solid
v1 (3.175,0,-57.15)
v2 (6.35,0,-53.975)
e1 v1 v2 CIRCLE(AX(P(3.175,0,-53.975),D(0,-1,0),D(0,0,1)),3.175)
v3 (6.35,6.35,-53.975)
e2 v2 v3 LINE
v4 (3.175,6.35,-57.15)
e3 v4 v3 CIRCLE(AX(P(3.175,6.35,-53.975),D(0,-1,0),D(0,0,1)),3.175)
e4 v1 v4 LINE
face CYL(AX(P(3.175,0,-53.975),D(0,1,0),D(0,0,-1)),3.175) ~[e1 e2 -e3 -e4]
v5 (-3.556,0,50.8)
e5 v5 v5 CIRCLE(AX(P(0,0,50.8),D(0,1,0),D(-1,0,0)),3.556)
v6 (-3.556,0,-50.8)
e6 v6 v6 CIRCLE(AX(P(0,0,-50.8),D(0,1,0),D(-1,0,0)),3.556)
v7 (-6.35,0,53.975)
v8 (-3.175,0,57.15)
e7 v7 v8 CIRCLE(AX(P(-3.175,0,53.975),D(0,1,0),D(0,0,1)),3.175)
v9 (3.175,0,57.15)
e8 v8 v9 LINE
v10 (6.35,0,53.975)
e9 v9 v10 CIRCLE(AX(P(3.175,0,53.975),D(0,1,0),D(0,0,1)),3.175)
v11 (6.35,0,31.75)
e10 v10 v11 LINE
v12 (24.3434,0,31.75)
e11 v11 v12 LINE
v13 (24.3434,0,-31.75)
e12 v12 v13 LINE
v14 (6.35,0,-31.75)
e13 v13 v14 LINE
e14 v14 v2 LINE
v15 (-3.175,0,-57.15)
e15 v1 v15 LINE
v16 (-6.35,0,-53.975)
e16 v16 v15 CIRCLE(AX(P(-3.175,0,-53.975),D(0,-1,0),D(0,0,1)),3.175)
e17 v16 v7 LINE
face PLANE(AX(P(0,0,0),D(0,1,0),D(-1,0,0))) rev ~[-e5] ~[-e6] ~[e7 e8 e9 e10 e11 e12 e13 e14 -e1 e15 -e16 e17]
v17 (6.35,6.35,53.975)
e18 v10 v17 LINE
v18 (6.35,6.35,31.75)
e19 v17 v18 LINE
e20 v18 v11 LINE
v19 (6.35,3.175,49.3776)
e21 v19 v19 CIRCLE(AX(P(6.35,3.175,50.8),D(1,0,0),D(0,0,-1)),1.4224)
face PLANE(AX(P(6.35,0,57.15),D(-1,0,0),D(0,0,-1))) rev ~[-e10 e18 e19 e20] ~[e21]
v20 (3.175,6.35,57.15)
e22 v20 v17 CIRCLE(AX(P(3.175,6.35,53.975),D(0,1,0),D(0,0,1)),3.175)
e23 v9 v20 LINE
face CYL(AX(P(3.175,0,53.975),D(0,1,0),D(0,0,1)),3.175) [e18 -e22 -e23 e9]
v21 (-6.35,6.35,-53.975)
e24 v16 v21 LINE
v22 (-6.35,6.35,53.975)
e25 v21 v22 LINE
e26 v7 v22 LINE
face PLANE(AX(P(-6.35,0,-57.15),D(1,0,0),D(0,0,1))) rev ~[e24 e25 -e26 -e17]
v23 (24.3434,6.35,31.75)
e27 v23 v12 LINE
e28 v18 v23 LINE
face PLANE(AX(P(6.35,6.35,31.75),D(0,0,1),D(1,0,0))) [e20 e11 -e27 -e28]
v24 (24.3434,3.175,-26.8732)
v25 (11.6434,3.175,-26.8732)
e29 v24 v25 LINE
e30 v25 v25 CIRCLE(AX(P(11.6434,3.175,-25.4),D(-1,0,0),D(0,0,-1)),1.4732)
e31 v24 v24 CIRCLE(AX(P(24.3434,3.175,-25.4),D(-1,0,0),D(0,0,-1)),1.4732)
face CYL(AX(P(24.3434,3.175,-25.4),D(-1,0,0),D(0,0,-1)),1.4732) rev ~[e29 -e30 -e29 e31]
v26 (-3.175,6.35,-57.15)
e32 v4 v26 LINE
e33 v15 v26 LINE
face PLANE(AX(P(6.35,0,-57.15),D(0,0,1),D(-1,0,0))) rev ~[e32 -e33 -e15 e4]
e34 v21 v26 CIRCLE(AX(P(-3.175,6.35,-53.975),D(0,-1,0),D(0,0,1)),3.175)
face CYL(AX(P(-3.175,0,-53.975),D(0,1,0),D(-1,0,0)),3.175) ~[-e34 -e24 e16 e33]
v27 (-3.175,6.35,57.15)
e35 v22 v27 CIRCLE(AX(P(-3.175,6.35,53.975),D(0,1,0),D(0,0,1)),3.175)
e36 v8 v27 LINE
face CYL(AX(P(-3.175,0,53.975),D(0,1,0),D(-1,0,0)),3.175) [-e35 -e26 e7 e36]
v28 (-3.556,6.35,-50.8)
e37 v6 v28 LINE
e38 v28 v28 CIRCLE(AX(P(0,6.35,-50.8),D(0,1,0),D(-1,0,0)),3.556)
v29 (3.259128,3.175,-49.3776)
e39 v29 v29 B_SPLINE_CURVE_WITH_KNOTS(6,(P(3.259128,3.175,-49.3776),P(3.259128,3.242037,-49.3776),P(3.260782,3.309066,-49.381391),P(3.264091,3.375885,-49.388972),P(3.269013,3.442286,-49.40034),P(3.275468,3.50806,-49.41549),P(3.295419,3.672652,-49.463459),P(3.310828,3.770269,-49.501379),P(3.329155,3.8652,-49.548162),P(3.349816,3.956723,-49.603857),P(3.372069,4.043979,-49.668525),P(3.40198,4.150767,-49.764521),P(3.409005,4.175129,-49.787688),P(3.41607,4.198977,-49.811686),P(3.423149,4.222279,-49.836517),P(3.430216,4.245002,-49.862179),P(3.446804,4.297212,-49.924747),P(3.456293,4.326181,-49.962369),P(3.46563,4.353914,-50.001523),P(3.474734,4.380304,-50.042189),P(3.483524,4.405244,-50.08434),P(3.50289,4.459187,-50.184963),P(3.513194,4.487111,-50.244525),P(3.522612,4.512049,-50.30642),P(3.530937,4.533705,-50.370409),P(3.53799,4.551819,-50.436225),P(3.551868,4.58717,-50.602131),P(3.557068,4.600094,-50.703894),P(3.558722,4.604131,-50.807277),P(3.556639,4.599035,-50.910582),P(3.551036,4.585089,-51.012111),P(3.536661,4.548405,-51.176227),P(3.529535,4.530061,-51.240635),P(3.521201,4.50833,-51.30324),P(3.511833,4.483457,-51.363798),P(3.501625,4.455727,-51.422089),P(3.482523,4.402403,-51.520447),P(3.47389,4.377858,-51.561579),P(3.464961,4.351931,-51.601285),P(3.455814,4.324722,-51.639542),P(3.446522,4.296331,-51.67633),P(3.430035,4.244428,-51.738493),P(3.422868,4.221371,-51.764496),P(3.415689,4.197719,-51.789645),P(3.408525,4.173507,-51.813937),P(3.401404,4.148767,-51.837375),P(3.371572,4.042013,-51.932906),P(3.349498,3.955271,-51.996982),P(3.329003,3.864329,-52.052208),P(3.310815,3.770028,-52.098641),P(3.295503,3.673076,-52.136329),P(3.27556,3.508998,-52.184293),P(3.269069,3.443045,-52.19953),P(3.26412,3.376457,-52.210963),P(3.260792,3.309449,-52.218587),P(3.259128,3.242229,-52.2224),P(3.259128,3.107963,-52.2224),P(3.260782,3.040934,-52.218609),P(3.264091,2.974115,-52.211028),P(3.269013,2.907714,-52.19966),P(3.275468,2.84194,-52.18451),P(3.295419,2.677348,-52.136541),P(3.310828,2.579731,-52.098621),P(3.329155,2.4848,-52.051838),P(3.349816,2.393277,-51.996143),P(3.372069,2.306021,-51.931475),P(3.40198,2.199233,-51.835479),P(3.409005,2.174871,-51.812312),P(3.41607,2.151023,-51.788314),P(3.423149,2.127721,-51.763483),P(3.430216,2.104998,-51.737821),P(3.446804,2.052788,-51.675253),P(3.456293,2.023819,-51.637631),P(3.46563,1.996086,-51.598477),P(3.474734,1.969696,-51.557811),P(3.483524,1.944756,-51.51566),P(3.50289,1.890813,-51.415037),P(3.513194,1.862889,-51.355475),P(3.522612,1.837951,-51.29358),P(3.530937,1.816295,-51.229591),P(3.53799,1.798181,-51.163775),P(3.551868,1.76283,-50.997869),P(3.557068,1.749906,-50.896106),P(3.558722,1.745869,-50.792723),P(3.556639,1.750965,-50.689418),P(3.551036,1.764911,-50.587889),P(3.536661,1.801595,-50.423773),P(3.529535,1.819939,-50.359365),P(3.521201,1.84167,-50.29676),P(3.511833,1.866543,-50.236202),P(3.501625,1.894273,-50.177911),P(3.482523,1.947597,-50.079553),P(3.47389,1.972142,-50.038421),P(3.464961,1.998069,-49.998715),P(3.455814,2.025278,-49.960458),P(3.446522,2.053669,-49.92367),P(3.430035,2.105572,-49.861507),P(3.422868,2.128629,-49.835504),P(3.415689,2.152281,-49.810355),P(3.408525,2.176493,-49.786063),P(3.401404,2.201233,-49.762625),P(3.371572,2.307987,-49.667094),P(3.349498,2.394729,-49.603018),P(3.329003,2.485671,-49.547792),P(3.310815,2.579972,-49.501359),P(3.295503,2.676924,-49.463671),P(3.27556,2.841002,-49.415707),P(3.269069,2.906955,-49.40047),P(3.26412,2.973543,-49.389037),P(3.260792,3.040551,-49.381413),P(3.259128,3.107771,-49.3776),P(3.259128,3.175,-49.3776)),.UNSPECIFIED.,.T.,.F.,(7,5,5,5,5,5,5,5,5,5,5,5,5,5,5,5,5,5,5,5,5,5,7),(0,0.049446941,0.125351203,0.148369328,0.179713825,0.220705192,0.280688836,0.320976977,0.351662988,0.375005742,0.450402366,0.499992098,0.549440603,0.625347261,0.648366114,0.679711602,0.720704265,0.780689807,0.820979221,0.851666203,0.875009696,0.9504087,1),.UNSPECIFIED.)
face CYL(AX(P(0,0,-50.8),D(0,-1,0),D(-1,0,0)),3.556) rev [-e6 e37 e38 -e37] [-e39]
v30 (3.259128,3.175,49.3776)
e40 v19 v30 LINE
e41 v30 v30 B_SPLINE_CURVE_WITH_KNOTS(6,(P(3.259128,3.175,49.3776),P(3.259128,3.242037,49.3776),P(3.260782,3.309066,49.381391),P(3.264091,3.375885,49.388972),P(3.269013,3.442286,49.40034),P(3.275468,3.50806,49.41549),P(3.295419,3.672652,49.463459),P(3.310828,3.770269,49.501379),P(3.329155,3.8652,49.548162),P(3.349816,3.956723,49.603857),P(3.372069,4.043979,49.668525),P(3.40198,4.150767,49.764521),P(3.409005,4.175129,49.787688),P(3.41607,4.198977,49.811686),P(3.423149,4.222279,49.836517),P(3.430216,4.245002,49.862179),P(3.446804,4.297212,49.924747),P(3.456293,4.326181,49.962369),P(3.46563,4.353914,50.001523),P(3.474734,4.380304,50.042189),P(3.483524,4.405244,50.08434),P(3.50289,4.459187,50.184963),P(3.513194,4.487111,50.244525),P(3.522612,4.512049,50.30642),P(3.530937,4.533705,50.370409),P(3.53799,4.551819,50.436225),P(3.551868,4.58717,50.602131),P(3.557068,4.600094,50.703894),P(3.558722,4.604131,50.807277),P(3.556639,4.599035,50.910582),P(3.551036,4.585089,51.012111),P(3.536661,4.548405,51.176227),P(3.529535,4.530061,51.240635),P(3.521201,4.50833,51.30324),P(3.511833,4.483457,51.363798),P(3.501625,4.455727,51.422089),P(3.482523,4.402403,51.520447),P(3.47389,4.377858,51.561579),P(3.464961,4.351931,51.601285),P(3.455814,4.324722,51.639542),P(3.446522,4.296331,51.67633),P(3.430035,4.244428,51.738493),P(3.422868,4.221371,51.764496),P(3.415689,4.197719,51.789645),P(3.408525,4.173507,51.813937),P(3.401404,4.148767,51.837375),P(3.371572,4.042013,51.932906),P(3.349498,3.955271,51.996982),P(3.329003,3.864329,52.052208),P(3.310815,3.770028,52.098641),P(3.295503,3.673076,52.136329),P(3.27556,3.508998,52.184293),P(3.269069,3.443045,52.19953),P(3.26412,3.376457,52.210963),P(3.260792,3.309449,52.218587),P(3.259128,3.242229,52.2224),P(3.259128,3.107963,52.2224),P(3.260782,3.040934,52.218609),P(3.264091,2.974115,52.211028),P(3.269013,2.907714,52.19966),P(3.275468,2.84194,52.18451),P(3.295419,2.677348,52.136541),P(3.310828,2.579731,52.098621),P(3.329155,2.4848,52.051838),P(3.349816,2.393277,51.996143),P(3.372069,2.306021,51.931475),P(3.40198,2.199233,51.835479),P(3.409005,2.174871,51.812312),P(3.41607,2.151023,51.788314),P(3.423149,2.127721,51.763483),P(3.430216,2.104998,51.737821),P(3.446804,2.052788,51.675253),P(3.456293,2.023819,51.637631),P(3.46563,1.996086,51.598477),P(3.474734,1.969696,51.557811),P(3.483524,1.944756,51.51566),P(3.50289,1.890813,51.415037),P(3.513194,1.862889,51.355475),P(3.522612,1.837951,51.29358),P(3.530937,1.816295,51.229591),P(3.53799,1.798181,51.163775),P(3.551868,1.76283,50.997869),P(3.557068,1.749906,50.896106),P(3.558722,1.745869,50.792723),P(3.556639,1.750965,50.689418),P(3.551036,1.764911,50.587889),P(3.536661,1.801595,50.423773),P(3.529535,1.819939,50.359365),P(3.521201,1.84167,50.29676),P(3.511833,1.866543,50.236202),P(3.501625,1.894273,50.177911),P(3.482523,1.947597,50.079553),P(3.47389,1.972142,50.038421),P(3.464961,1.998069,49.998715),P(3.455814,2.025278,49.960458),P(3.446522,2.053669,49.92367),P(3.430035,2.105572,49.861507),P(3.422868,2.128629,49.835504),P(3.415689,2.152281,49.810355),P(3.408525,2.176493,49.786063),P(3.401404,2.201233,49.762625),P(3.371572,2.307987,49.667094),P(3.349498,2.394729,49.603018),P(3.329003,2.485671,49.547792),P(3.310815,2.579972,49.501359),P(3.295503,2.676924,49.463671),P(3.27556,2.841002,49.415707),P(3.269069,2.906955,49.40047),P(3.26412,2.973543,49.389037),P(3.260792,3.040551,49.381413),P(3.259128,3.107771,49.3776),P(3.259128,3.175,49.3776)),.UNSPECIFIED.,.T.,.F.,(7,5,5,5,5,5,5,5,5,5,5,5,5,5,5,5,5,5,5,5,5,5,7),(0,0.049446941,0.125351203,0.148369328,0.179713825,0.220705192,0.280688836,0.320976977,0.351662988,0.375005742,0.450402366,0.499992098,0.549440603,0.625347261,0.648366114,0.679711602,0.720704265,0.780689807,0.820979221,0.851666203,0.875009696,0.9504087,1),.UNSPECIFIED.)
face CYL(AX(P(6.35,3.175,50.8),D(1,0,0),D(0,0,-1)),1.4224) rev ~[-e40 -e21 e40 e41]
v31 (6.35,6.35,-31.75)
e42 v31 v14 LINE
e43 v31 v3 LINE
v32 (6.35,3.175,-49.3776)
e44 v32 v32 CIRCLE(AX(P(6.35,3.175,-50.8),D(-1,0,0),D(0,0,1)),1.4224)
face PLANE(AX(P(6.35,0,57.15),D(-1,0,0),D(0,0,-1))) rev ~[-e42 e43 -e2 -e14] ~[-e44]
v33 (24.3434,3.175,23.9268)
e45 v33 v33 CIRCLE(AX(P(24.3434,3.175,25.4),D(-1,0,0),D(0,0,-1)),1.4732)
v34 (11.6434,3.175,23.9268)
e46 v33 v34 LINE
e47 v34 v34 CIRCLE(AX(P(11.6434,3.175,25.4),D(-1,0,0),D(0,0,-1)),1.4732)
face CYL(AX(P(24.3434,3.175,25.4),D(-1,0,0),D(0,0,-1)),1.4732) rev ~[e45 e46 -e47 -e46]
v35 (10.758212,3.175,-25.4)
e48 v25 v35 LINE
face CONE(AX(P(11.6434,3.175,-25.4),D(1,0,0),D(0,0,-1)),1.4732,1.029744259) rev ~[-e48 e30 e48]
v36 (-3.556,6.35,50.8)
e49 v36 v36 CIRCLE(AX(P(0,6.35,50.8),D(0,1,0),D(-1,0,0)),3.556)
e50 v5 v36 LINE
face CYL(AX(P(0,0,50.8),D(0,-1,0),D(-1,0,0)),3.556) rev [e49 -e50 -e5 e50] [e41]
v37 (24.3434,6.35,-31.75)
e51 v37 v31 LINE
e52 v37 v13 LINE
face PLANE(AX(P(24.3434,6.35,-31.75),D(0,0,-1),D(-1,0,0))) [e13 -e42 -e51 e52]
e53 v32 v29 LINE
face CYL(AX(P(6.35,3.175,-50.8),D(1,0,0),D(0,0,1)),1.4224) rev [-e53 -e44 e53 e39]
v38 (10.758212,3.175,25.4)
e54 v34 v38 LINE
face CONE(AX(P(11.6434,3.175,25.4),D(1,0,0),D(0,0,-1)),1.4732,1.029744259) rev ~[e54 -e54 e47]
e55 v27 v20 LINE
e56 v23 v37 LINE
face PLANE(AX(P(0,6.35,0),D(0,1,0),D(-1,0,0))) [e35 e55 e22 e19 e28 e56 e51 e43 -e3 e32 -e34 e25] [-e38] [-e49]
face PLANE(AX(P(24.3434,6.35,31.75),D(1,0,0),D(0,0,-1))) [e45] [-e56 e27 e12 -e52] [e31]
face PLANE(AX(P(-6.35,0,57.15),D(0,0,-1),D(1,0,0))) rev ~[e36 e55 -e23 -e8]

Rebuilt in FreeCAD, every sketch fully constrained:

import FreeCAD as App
import Part
import Sketcher
from FreeCAD import Vector
Q = App.Units.Quantity


def edges_at(feature, points):
    """Names of the edges that pass closest to the given points."""
    edges = feature.Shape.Edges
    near = lambda p: min(range(len(edges)), key=lambda i: edges[i].distToShape(Part.Vertex(*p))[0])
    return sorted({f"Edge{near(p) + 1}" for p in points})


def add_polygon(sketch, points):
    """Adds a closed chain of lines whose ends are joined by coincident constraints."""
    first, n = sketch.GeometryCount, len(points)
    for a, b in zip(points, points[1:] + points[:1]):
        sketch.addGeometry(Part.LineSegment(App.Vector(*a, 0), App.Vector(*b, 0)), False)
    for i in range(n):
        sketch.addConstraint(Sketcher.Constraint("Coincident", first + i, 2, first + (i + 1) % n, 1))

doc = App.newDocument("Part")
body = doc.addObject("PartDesign::Body", "Body")

sketch1 = body.newObject("Sketcher::SketchObject", "Sketch")
sketch1.AttachmentSupport = (doc.getObject("XZ_Plane"), [""])
sketch1.MapMode = "FlatFace"
add_polygon(sketch1, [(-6.3, -57.1), (-6.3, 57.1), (6.3, 57.1), (6.3, -57.1)])
sketch1.addGeometry(Part.Circle(Vector(0, -50.8, 0), Vector(0, 0, 1), 3.6), False)
sketch1.addGeometry(Part.Circle(Vector(0, 50.8, 0), Vector(0, 0, 1), 3.6), False)
sketch1.addConstraint([
    Sketcher.Constraint("Vertical", 0),
    Sketcher.Constraint("Horizontal", 1),
    Sketcher.Constraint("Vertical", 2),
    Sketcher.Constraint("Horizontal", 3),
    Sketcher.Constraint("Equal", 4, 5),
    Sketcher.Constraint("Symmetric", 4, 3, 5, 3, -1, 1),
    Sketcher.Constraint("Symmetric", 0, 2, 2, 2, -1, 1),
    Sketcher.Constraint("PointOnObject", 4, 3, -2),
    Sketcher.Constraint("Diameter", 4, Q("0.28 in")),
    Sketcher.Constraint("DistanceX", 1, 1, 1, 2, Q("0.5 in")),
    Sketcher.Constraint("DistanceY", 0, 1, 0, 2, Q("4.5 in")),
    Sketcher.Constraint("DistanceY", 4, 3, -1, 1, Q("2 in")),
])
pad1 = body.newObject("PartDesign::Pad", "Pad")
pad1.Profile = sketch1
pad1.Length = Q("0.25 in")
pad1.Reversed = True

sketch2 = body.newObject("Sketcher::SketchObject", "Sketch001")
sketch2.AttachmentSupport = (doc.getObject("YZ_Plane"), [""])
sketch2.MapMode = "FlatFace"
sketch2.AttachmentOffset = App.Placement(Vector(0, 0, 0.25 * 25.4), App.Rotation())
sketch2.addGeometry(Part.Circle(Vector(3.2, 50.8, 0), Vector(0, 0, 1), 1.4), False)
sketch2.addConstraint([
    Sketcher.Constraint("Diameter", 0, Q("0.112 in")),
    Sketcher.Constraint("DistanceX", -1, 1, 0, 3, Q("0.125 in")),
    Sketcher.Constraint("DistanceY", -1, 1, 0, 3, Q("2 in")),
])
pocket1 = body.newObject("PartDesign::Pocket", "Pocket")
pocket1.Profile = sketch2
pocket1.Length = Q("0.121689 in")
doc.recompute()

mirrored = body.newObject("PartDesign::Mirrored", "Mirrored")
mirrored.Originals = [pocket1]
mirrored.MirrorPlane = (doc.getObject("XY_Plane"), [""])
body.Tip = mirrored
doc.recompute()

fillet = body.newObject("PartDesign::Fillet", "Fillet")
fillet.Base = (mirrored, edges_at(mirrored, [
    (6.35, 3.175, 57.15),
    (-6.35, 3.175, 57.15),
    (6.35, 3.175, -57.15),
    (-6.35, 3.175, -57.15),
]))
fillet.Radius = Q("0.125 in")

sketch3 = body.newObject("Sketcher::SketchObject", "Sketch002")
sketch3.AttachmentSupport = (doc.getObject("XZ_Plane"), [""])
sketch3.MapMode = "FlatFace"
sketch3.AttachmentOffset = App.Placement(Vector(0, 0, -0.25 * 25.4), App.Rotation())
add_polygon(sketch3, [(6, -32), (6, 32), (24, 32), (24, -32)])
sketch3.addConstraint([
    Sketcher.Constraint("Vertical", 0),
    Sketcher.Constraint("Horizontal", 1),
    Sketcher.Constraint("Vertical", 2),
    Sketcher.Constraint("Horizontal", 3),
    Sketcher.Constraint("DistanceY", 0, 1, 0, 2, Q("2.5 in")),
    Sketcher.Constraint("DistanceY", -1, 1, 0, 2, Q("1.25 in")),
    Sketcher.Constraint("DistanceX", 1, 1, 1, 2, Q("0.7084 in")),
    Sketcher.Constraint("DistanceX", -1, 1, 0, 2, Q("0.25 in")),
])
pad2 = body.newObject("PartDesign::Pad", "Pad001")
pad2.Profile = sketch3
pad2.Length = Q("0.25 in")

sketch4 = body.newObject("Sketcher::SketchObject", "Sketch003")
sketch4.AttachmentSupport = (doc.getObject("YZ_Plane"), [""])
sketch4.MapMode = "FlatFace"
sketch4.AttachmentOffset = App.Placement(Vector(0, 0, 0.9584016 * 25.4), App.Rotation())
sketch4.addGeometry([
    Part.Circle(Vector(3.2, 25.4, 0), Vector(0, 0, 1), 1.5),
    Part.Circle(Vector(3.2, -25.4, 0), Vector(0, 0, 1), 1.5),
], False)
sketch4.addConstraint([
    Sketcher.Constraint("Equal", 0, 1),
    Sketcher.Constraint("Symmetric", 0, 3, 1, 3, -1),
    Sketcher.Constraint("Diameter", 0, Q("0.116 in")),
    Sketcher.Constraint("DistanceY", -1, 1, 0, 3, Q("1 in")),
    Sketcher.Constraint("DistanceX", -1, 1, 0, 3, Q("0.125 in")),
])
doc.recompute()
hole = body.newObject("PartDesign::Hole", "Hole")
hole.Profile = sketch4
hole.ThreadType = "None"
hole.Diameter = Q("0.116 in")
hole.DepthType = "Dimension"
hole.Depth = Q("0.5 in")
hole.DrillPoint = "Angled"
hole.DrillPointAngle = 118

doc.recompute()
